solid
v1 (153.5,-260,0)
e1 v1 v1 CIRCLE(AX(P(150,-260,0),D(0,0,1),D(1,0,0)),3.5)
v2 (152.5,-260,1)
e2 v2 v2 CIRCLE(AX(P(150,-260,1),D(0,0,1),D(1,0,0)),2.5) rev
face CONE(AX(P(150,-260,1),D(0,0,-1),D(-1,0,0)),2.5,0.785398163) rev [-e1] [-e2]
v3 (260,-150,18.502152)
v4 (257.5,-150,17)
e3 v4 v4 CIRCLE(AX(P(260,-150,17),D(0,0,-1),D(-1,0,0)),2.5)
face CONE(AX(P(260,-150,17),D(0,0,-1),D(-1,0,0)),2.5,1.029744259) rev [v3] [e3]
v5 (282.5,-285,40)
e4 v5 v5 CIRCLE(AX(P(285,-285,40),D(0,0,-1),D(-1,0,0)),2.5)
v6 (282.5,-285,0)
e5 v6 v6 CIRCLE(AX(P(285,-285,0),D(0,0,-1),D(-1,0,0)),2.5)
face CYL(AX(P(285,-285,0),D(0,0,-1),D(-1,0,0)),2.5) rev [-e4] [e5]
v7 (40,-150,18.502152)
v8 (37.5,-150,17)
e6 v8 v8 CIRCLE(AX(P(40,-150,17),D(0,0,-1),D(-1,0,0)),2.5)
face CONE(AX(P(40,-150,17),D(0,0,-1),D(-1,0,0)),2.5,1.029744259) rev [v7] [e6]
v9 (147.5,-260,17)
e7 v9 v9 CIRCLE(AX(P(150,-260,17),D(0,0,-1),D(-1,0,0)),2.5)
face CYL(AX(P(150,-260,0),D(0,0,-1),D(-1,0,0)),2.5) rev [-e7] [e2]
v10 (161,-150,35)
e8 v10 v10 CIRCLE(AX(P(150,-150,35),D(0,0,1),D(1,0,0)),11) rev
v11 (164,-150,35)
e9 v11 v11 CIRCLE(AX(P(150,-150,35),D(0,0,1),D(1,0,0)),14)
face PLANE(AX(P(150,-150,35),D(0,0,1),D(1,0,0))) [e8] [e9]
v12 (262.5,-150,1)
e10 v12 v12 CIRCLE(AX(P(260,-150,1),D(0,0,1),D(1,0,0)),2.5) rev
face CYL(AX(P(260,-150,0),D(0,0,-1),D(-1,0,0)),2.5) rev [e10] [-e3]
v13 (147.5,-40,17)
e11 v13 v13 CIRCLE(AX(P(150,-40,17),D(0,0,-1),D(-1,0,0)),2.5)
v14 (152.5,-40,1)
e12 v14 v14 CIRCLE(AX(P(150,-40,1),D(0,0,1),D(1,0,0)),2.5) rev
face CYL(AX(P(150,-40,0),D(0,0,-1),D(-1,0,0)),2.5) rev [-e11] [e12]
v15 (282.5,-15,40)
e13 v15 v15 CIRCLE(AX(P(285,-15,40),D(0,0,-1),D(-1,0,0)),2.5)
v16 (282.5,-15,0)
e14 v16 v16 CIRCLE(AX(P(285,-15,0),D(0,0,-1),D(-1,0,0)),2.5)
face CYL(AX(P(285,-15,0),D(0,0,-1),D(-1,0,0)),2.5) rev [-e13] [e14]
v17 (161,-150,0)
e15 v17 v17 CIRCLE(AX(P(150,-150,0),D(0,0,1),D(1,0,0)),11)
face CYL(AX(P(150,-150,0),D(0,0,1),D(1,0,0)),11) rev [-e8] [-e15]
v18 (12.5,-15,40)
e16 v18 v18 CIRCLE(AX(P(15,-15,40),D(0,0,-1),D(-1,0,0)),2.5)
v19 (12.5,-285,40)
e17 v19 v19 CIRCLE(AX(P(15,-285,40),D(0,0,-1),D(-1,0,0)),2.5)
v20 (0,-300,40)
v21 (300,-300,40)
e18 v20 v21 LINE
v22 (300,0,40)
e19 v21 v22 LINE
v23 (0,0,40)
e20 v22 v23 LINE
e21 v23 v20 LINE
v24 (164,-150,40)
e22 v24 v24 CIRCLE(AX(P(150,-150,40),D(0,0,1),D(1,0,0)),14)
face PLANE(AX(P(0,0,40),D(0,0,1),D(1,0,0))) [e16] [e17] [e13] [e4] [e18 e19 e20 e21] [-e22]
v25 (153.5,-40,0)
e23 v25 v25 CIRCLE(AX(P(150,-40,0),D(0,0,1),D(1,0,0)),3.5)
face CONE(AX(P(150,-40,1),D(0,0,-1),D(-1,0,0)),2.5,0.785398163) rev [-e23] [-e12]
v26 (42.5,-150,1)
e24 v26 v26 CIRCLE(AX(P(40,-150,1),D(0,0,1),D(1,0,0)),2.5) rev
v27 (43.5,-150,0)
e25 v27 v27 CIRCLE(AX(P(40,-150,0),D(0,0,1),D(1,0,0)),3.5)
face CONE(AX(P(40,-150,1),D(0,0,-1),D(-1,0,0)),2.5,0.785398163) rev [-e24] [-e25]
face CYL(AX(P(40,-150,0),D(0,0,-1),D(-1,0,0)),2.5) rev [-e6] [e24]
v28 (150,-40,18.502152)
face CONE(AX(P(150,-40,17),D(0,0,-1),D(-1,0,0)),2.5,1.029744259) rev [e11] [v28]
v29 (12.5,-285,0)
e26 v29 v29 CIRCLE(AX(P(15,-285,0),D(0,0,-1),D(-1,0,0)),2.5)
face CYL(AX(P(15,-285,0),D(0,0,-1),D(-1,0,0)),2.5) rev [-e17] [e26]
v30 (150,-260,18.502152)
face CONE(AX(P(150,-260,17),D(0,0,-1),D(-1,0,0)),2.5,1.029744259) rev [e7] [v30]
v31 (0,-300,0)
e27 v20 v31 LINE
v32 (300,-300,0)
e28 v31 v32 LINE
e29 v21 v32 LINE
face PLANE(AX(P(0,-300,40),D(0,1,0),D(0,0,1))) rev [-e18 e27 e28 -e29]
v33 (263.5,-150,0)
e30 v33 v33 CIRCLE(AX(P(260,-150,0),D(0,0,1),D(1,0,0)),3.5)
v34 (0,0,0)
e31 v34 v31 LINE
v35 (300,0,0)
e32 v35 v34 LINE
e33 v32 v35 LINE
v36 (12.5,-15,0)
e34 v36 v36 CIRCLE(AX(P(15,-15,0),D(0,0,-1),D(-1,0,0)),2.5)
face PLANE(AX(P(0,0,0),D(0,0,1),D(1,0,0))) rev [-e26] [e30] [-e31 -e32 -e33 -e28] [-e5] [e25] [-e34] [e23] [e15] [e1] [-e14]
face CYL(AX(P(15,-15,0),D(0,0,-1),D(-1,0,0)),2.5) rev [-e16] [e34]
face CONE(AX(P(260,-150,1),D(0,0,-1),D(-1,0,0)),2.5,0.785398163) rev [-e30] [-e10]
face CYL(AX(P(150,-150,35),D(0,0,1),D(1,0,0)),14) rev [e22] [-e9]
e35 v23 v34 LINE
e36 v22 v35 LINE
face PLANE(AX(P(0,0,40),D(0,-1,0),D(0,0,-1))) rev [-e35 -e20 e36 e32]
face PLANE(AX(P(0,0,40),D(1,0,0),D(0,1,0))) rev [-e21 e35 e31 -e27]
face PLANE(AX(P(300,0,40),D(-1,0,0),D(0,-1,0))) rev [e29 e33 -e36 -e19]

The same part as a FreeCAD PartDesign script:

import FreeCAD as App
import Part
import Sketcher

V = App.Vector


def edges_at(feature, points):
    """Names of the edges that pass closest to the given points."""
    edges = feature.Shape.Edges
    near = lambda p: min(range(len(edges)), key=lambda i: edges[i].distToShape(Part.Vertex(*p))[0])
    return sorted({f"Edge{near(p) + 1}" for p in points})


def add_polygon(sketch, points):
    """Adds a closed chain of lines whose ends are joined by coincident constraints."""
    first, n = sketch.GeometryCount, len(points)
    for a, b in zip(points, points[1:] + points[:1]):
        sketch.addGeometry(Part.LineSegment(App.Vector(*a, 0), App.Vector(*b, 0)), False)
    for i in range(n):
        sketch.addConstraint(Sketcher.Constraint("Coincident", first + i, 2, first + (i + 1) % n, 1))

doc = App.newDocument("Part")
params = doc.addObject("Spreadsheet::Sheet", "Params")
for row, (alias, value) in enumerate([
    ("sketch1_width", "300 mm"),
    ("pad1_length", "40 mm"),
    ("sketch2_diameter", "22 mm"),
    ("sketch3_diameter", "5 mm"),
    ("hole_diameter", "5 mm"),
    ("hole_depth", "17 mm"),
    ("sketch4_diameter", "5 mm"),
    ("hole2_diameter", "5 mm"),
    ("hole2_depth", "17 mm"),
    ("sketch5_diameter", "5 mm"),
    ("hole3_diameter", "5 mm"),
    ("hole3_depth", "17 mm"),
    ("sketch6_diameter", "5 mm"),
    ("hole4_diameter", "5 mm"),
    ("hole4_depth", "17 mm"),
    ("sketch7_diameter", "28 mm"),
    ("pocket2_length", "5 mm"),
    ("chamfer_size", "1 mm"),
    ("chamfer2_size", "1 mm"),
    ("chamfer3_size", "1 mm"),
    ("chamfer4_size", "1 mm"),
    ("sketch8_diameter", "5 mm"),
    ("hole5_diameter", "5 mm"),
], start=1):
    params.set(f"A{row}", alias)
    params.set(f"B{row}", "=" + value)
    params.setAlias(f"B{row}", alias)

body = doc.addObject("PartDesign::Body", "Body")

# Sketch on XY plane
sketch1 = body.newObject("Sketcher::SketchObject", "Sketch")
sketch1.AttachmentSupport = (doc.getObject("XY_Plane"), [""])
sketch1.MapMode = "FlatFace"
add_polygon(sketch1, [(0, 0), (0, -300), (300, -300), (300, 0)])  # lines 0-3
sketch1.addConstraint([
    Sketcher.Constraint("Vertical", 0),
    Sketcher.Constraint("Horizontal", 1),
    Sketcher.Constraint("Vertical", 2),
    Sketcher.Constraint("Horizontal", 3),
    Sketcher.Constraint("Coincident", 3, 2, -1, 1),
    Sketcher.Constraint("Equal", 3, 0),
    Sketcher.Constraint("DistanceX", 1, 1, 1, 2, 300.0),
])
sketch1.setExpression("Constraints[10]", "Params.sketch1_width")
pad1 = body.newObject("PartDesign::Pad", "Pad")
pad1.Profile = sketch1
pad1.setExpression("Length", "Params.pad1_length")

# Sketch on XY plane
sketch2 = body.newObject("Sketcher::SketchObject", "Sketch001")
sketch2.AttachmentSupport = (doc.getObject("XY_Plane"), [""])
sketch2.MapMode = "FlatFace"
sketch2.AttachmentOffset = App.Placement(V(0, 0, 40), App.Rotation())
sketch2.addGeometry(Part.Circle(V(150, -150, 0), V(0, 0, 1), 11), False)
sketch2.addConstraint([
    Sketcher.Constraint("Diameter", 0, 22.0),
    Sketcher.Constraint("DistanceX", -1, 1, 0, 3, 150.0),
    Sketcher.Constraint("DistanceY", 0, 3, -1, 1, 150.0),
])
sketch2.setExpression("Constraints[0]", "Params.sketch2_diameter")
pocket1 = body.newObject("PartDesign::Pocket", "Pocket")
pocket1.Profile = sketch2
pocket1.Type = "ThroughAll"

# Sketch on XY plane
sketch3 = body.newObject("Sketcher::SketchObject", "Sketch002")
sketch3.AttachmentSupport = (doc.getObject("XY_Plane"), [""])
sketch3.MapMode = "FlatFace"
sketch3.addGeometry(Part.Circle(V(260, -150, 0), V(0, 0, 1), 2.5), False)
sketch3.addConstraint([
    Sketcher.Constraint("Diameter", 0, 5.0),
    Sketcher.Constraint("DistanceX", -1, 1, 0, 3, 260.0),
    Sketcher.Constraint("DistanceY", 0, 3, -1, 1, 150.0),
])
sketch3.setExpression("Constraints[0]", "Params.sketch3_diameter")
doc.recompute()
hole = body.newObject("PartDesign::Hole", "Hole")
hole.Profile = sketch3
hole.ThreadType = "None"
hole.setExpression("Diameter", "Params.hole_diameter")
hole.DepthType = "Dimension"
hole.setExpression("Depth", "Params.hole_depth")
hole.DrillPoint = "Angled"
hole.DrillPointAngle = 118
hole.Reversed = True

# Sketch on XY plane
sketch4 = body.newObject("Sketcher::SketchObject", "Sketch003")
sketch4.AttachmentSupport = (doc.getObject("XY_Plane"), [""])
sketch4.MapMode = "FlatFace"
sketch4.addGeometry(Part.Circle(V(150, -40, 0), V(0, 0, 1), 2.5), False)
sketch4.addConstraint([
    Sketcher.Constraint("Diameter", 0, 5.0),
    Sketcher.Constraint("DistanceX", -1, 1, 0, 3, 150.0),
    Sketcher.Constraint("DistanceY", 0, 3, -1, 1, 40.0),
])
sketch4.setExpression("Constraints[0]", "Params.sketch4_diameter")
doc.recompute()
hole2 = body.newObject("PartDesign::Hole", "Hole001")
hole2.Profile = sketch4
hole2.ThreadType = "None"
hole2.setExpression("Diameter", "Params.hole2_diameter")
hole2.DepthType = "Dimension"
hole2.setExpression("Depth", "Params.hole2_depth")
hole2.DrillPoint = "Angled"
hole2.DrillPointAngle = 118
hole2.Reversed = True

# Sketch on XY plane
sketch5 = body.newObject("Sketcher::SketchObject", "Sketch004")
sketch5.AttachmentSupport = (doc.getObject("XY_Plane"), [""])
sketch5.MapMode = "FlatFace"
sketch5.addGeometry(Part.Circle(V(40, -150, 0), V(0, 0, 1), 2.5), False)
sketch5.addConstraint([
    Sketcher.Constraint("Diameter", 0, 5.0),
    Sketcher.Constraint("DistanceX", -1, 1, 0, 3, 40.0),
    Sketcher.Constraint("DistanceY", 0, 3, -1, 1, 150.0),
])
sketch5.setExpression("Constraints[0]", "Params.sketch5_diameter")
doc.recompute()
hole3 = body.newObject("PartDesign::Hole", "Hole002")
hole3.Profile = sketch5
hole3.ThreadType = "None"
hole3.setExpression("Diameter", "Params.hole3_diameter")
hole3.DepthType = "Dimension"
hole3.setExpression("Depth", "Params.hole3_depth")
hole3.DrillPoint = "Angled"
hole3.DrillPointAngle = 118
hole3.Reversed = True

# Sketch on XY plane
sketch6 = body.newObject("Sketcher::SketchObject", "Sketch005")
sketch6.AttachmentSupport = (doc.getObject("XY_Plane"), [""])
sketch6.MapMode = "FlatFace"
sketch6.addGeometry(Part.Circle(V(150, -260, 0), V(0, 0, 1), 2.5), False)
sketch6.addConstraint([
    Sketcher.Constraint("Diameter", 0, 5.0),
    Sketcher.Constraint("DistanceX", -1, 1, 0, 3, 150.0),
    Sketcher.Constraint("DistanceY", 0, 3, -1, 1, 260.0),
])
sketch6.setExpression("Constraints[0]", "Params.sketch6_diameter")
doc.recompute()
hole4 = body.newObject("PartDesign::Hole", "Hole003")
hole4.Profile = sketch6
hole4.ThreadType = "None"
hole4.setExpression("Diameter", "Params.hole4_diameter")
hole4.DepthType = "Dimension"
hole4.setExpression("Depth", "Params.hole4_depth")
hole4.DrillPoint = "Angled"
hole4.DrillPointAngle = 118
hole4.Reversed = True

# Sketch on XY plane
sketch7 = body.newObject("Sketcher::SketchObject", "Sketch006")
sketch7.AttachmentSupport = (doc.getObject("XY_Plane"), [""])
sketch7.MapMode = "FlatFace"
sketch7.AttachmentOffset = App.Placement(V(0, 0, 40), App.Rotation())
sketch7.addGeometry(Part.Circle(V(150, -150, 0), V(0, 0, 1), 14), False)
sketch7.addConstraint([
    Sketcher.Constraint("Diameter", 0, 28.0),
    Sketcher.Constraint("DistanceX", -1, 1, 0, 3, 150.0),
    Sketcher.Constraint("DistanceY", 0, 3, -1, 1, 150.0),
])
sketch7.setExpression("Constraints[0]", "Params.sketch7_diameter")
pocket2 = body.newObject("PartDesign::Pocket", "Pocket001")
pocket2.Profile = sketch7
pocket2.setExpression("Length", "Params.pocket2_length")
doc.recompute()

chamfer = body.newObject("PartDesign::Chamfer", "Chamfer")
chamfer.Base = (pocket2, edges_at(pocket2, [(257.5, -150, 0)]))
chamfer.setExpression("Size", "Params.chamfer_size")
doc.recompute()

chamfer2 = body.newObject("PartDesign::Chamfer", "Chamfer001")
chamfer2.Base = (chamfer, edges_at(chamfer, [(147.5, -40, 0)]))
chamfer2.setExpression("Size", "Params.chamfer2_size")
doc.recompute()

chamfer3 = body.newObject("PartDesign::Chamfer", "Chamfer002")
chamfer3.Base = (chamfer2, edges_at(chamfer2, [(147.5, -260, 0)]))
chamfer3.setExpression("Size", "Params.chamfer3_size")
doc.recompute()

chamfer4 = body.newObject("PartDesign::Chamfer", "Chamfer003")
chamfer4.Base = (chamfer3, edges_at(chamfer3, [(37.5, -150, 0)]))
chamfer4.setExpression("Size", "Params.chamfer4_size")

# Sketch on XY plane
sketch8 = body.newObject("Sketcher::SketchObject", "Sketch007")
sketch8.AttachmentSupport = (doc.getObject("XY_Plane"), [""])
sketch8.MapMode = "FlatFace"
sketch8.addGeometry([
    Part.Circle(V(285, -15, 0), V(0, 0, 1), 2.5),
    Part.Circle(V(15, -15, 0), V(0, 0, 1), 2.5),
    Part.Circle(V(15, -285, 0), V(0, 0, 1), 2.5),
    Part.Circle(V(285, -285, 0), V(0, 0, 1), 2.5),
], False)
sketch8.addConstraint([
    Sketcher.Constraint("Equal", 0, 1),
    Sketcher.Constraint("Equal", 1, 2),
    Sketcher.Constraint("Equal", 2, 3),
    Sketcher.Constraint("Horizontal", 0, 3, 1, 3),
    Sketcher.Constraint("Horizontal", 2, 3, 3, 3),
    Sketcher.Constraint("Vertical", 1, 3, 2, 3),
    Sketcher.Constraint("Vertical", 0, 3, 3, 3),
    Sketcher.Constraint("Diameter", 0, 5.0),
    Sketcher.Constraint("DistanceX", -1, 1, 0, 3, 285.0),
    Sketcher.Constraint("DistanceY", 0, 3, -1, 1, 15.0),
    Sketcher.Constraint("DistanceX", -1, 1, 1, 3, 15.0),
    Sketcher.Constraint("DistanceY", 2, 3, -1, 1, 285.0),
])
sketch8.setExpression("Constraints[7]", "Params.sketch8_diameter")
doc.recompute()
hole5 = body.newObject("PartDesign::Hole", "Hole004")
hole5.Profile = sketch8
hole5.ThreadType = "None"
hole5.setExpression("Diameter", "Params.hole5_diameter")
hole5.DepthType = "ThroughAll"
hole5.Reversed = True

doc.recompute()
